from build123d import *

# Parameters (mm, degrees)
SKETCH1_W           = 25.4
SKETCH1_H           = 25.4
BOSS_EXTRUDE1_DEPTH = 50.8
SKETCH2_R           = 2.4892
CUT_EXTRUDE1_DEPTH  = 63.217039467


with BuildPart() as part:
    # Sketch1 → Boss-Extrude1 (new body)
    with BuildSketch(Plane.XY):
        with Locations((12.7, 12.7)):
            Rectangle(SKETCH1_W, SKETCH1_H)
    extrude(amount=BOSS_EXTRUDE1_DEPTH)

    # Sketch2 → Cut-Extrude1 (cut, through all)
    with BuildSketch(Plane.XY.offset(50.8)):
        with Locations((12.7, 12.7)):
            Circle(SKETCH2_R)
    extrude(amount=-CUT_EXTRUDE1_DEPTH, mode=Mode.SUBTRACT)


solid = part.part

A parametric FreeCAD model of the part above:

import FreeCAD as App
import Part
import Sketcher
Q = App.Units.Quantity


def add_polygon(sketch, points):
    """Adds a closed chain of lines whose ends are joined by coincident constraints."""
    first, n = sketch.GeometryCount, len(points)
    for a, b in zip(points, points[1:] + points[:1]):
        sketch.addGeometry(Part.LineSegment(App.Vector(*a, 0), App.Vector(*b, 0)), False)
    for i in range(n):
        sketch.addConstraint(Sketcher.Constraint("Coincident", first + i, 2, first + (i + 1) % n, 1))

doc = App.newDocument("Part")
body = doc.addObject("PartDesign::Body", "Body")

# Sketch on XY plane
sketch1 = body.newObject("Sketcher::SketchObject", "Sketch")
sketch1.AttachmentSupport = (doc.getObject("XY_Plane"), [""])
sketch1.MapMode = "FlatFace"
add_polygon(sketch1, [(0, 25), (0, 0), (25, 0), (25, 25)])  # lines 0-3
sketch1.addConstraint([
    Sketcher.Constraint("Vertical", 0),
    Sketcher.Constraint("Horizontal", 1),
    Sketcher.Constraint("Vertical", 2),
    Sketcher.Constraint("Horizontal", 3),
    Sketcher.Constraint("Coincident", 0, 2, -1, 1),
    Sketcher.Constraint("Equal", 3, 0),
    Sketcher.Constraint("DistanceX", 1, 1, 1, 2, Q("1 in")),
])
pad1 = body.newObject("PartDesign::Pad", "Pad")
pad1.Profile = sketch1
pad1.Length = Q("2 in")

# Sketch on XY plane
sketch2 = body.newObject("Sketcher::SketchObject", "Sketch001")
sketch2.AttachmentSupport = (doc.getObject("XY_Plane"), [""])
sketch2.MapMode = "FlatFace"
sketch2.AttachmentOffset = App.Placement(App.Vector(0, 0, 2 * 25.4), App.Rotation())
sketch2.addGeometry(Part.Circle(App.Vector(12.7, 12.7, 0), App.Vector(0, 0, 1), 2.5), False)
sketch2.addConstraint([
    Sketcher.Constraint("Diameter", 0, Q("0.196 in")),
    Sketcher.Constraint("DistanceX", -1, 1, 0, 3, Q("0.5 in")),
    Sketcher.Constraint("DistanceY", -1, 1, 0, 3, Q("0.5 in")),
])
pocket1 = body.newObject("PartDesign::Pocket", "Pocket")
pocket1.Profile = sketch2
pocket1.Type = "ThroughAll"

doc.recompute()
